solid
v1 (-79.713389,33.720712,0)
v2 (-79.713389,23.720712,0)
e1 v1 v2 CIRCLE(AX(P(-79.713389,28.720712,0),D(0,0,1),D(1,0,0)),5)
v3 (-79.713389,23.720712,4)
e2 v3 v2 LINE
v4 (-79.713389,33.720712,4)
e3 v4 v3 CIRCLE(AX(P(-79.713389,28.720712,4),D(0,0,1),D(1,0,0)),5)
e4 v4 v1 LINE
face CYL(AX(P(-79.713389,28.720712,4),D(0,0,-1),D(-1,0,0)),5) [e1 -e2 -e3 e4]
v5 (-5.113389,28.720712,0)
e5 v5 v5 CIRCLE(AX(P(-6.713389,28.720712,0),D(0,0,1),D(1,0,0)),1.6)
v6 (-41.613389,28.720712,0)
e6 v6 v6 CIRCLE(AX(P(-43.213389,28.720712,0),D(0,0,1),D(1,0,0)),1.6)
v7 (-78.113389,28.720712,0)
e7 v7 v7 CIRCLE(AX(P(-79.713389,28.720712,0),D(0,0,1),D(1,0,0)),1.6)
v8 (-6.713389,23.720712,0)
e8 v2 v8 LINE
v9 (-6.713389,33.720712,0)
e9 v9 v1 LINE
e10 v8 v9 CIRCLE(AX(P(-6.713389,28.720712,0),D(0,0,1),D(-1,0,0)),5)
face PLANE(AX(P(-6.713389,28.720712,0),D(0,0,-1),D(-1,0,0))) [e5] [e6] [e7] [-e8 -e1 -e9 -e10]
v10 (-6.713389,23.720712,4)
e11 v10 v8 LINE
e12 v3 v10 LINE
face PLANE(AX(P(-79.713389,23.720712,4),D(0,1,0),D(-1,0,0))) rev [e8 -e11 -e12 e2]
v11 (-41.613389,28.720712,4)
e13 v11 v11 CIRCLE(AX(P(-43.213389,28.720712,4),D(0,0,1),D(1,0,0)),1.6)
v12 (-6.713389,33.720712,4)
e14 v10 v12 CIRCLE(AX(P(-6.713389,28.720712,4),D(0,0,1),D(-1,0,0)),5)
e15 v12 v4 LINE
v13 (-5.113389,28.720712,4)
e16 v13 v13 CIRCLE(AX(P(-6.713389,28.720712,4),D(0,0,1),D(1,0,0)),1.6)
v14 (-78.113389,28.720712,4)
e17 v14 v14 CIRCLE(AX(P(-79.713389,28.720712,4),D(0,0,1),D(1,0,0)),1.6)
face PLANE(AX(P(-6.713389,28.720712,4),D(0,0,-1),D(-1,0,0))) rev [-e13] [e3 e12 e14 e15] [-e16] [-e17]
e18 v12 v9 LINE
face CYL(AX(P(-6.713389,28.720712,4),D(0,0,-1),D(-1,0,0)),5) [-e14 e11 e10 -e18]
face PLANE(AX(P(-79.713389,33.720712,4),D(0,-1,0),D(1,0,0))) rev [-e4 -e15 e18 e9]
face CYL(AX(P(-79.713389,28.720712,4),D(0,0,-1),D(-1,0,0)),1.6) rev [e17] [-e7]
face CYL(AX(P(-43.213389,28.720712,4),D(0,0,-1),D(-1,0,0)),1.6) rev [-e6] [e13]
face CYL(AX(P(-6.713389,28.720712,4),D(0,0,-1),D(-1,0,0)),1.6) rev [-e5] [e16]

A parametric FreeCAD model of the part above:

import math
import FreeCAD as App
import Part
import Sketcher

V = App.Vector

doc = App.newDocument("Part")
body = doc.addObject("PartDesign::Body", "Body")

sketch1 = body.newObject("Sketcher::SketchObject", "Sketch")
sketch1.AttachmentSupport = (doc.getObject("XY_Plane"), [""])
sketch1.MapMode = "FlatFace"
sketch1.addGeometry([
    Part.LineSegment(V(-6.713389, 33.720712, 0), V(-79.713389, 33.720712, 0)),
    Part.ArcOfCircle(Part.Circle(V(-79.713389, 28.720712, 0), V(0, 0, 1), 5), math.radians(90), math.radians(270)),
    Part.LineSegment(V(-79.713389, 23.720712, 0), V(-6.713389, 23.720712, 0)),
    Part.ArcOfCircle(Part.Circle(V(-6.713389, 28.720712, 0), V(0, 0, 1), 5), math.radians(-90), math.radians(90)),
    Part.Circle(V(-6.713389, 28.720712, 0), V(0, 0, 1), 1.6),
    Part.Circle(V(-43.213389, 28.720712, 0), V(0, 0, 1), 1.6),
    Part.Circle(V(-79.713389, 28.720712, 0), V(0, 0, 1), 1.6),
], False)
sketch1.addConstraint([
    Sketcher.Constraint("Tangent", 0, 2, 1, 1),
    Sketcher.Constraint("Tangent", 1, 2, 2, 1),
    Sketcher.Constraint("Tangent", 2, 2, 3, 1),
    Sketcher.Constraint("Tangent", 3, 2, 0, 1),
    Sketcher.Constraint("Horizontal", 0),
    Sketcher.Constraint("Horizontal", 2),
    Sketcher.Constraint("Coincident", 4, 3, 3, 3),
    Sketcher.Constraint("Coincident", 6, 3, 1, 3),
    Sketcher.Constraint("Equal", 4, 5),
    Sketcher.Constraint("Equal", 5, 6),
    Sketcher.Constraint("Horizontal", 4, 3, 5, 3),
    Sketcher.Constraint("Radius", 1, 5.0),
    Sketcher.Constraint("Diameter", 4, 3.2),
    Sketcher.Constraint("DistanceX", 0, 2, 0, 1, 73.0),
    Sketcher.Constraint("DistanceX", 1, 3, 5, 3, 36.5),
    Sketcher.Constraint("DistanceX", 1, 3, -1, 1, 79.713389),
    Sketcher.Constraint("DistanceY", -1, 1, 1, 3, 28.720712),
])
pad1 = body.newObject("PartDesign::Pad", "Pad")
pad1.Profile = sketch1
pad1.Length = 4

doc.recompute()
